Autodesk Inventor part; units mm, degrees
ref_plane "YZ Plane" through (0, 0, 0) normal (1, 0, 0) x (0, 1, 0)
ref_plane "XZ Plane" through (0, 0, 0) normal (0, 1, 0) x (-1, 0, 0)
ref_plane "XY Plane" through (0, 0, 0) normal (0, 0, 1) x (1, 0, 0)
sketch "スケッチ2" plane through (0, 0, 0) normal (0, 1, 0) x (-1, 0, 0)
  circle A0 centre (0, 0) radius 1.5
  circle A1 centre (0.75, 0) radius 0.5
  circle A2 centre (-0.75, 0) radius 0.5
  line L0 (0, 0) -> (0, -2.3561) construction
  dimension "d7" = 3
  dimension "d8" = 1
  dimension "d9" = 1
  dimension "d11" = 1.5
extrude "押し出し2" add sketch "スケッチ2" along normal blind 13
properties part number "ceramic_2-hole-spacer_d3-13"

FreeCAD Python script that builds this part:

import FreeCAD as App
import Part
import Sketcher
Q = App.Units.Quantity

doc = App.newDocument("Part")
body = doc.addObject("PartDesign::Body", "Body")

# Sketch on XZ plane
sketch1 = body.newObject("Sketcher::SketchObject", "Sketch")
sketch1.AttachmentSupport = (doc.getObject("XZ_Plane"), [""])
sketch1.MapMode = "FlatFace"
sketch1.addGeometry(Part.Circle(App.Vector(0, 0, 0), App.Vector(0, 0, 1), 1.5), False)
sketch1.addGeometry(Part.Circle(App.Vector(0.75, 0, 0), App.Vector(0, 0, 1), 0.5), False)
sketch1.addGeometry(Part.Circle(App.Vector(-0.75, 0, 0), App.Vector(0, 0, 1), 0.5), False)
sketch1.addConstraint(Sketcher.Constraint("Coincident", 0, 3, -1, 1))
sketch1.addConstraint(Sketcher.Constraint("Equal", 1, 2))
sketch1.addConstraint(Sketcher.Constraint("Symmetric", 1, 3, 2, 3, -1, 1))
sketch1.addConstraint(Sketcher.Constraint("PointOnObject", 1, 3, -1))
sketch1.addConstraint(Sketcher.Constraint("Diameter", 0, Q("3 mm")))
sketch1.addConstraint(Sketcher.Constraint("Diameter", 1, Q("1 mm")))
sketch1.addConstraint(Sketcher.Constraint("DistanceX", 2, 3, 1, 3, Q("1.5 mm")))
pad1 = body.newObject("PartDesign::Pad", "Pad")
pad1.Profile = sketch1
pad1.Length = 13
pad1.Reversed = True

doc.recompute()
